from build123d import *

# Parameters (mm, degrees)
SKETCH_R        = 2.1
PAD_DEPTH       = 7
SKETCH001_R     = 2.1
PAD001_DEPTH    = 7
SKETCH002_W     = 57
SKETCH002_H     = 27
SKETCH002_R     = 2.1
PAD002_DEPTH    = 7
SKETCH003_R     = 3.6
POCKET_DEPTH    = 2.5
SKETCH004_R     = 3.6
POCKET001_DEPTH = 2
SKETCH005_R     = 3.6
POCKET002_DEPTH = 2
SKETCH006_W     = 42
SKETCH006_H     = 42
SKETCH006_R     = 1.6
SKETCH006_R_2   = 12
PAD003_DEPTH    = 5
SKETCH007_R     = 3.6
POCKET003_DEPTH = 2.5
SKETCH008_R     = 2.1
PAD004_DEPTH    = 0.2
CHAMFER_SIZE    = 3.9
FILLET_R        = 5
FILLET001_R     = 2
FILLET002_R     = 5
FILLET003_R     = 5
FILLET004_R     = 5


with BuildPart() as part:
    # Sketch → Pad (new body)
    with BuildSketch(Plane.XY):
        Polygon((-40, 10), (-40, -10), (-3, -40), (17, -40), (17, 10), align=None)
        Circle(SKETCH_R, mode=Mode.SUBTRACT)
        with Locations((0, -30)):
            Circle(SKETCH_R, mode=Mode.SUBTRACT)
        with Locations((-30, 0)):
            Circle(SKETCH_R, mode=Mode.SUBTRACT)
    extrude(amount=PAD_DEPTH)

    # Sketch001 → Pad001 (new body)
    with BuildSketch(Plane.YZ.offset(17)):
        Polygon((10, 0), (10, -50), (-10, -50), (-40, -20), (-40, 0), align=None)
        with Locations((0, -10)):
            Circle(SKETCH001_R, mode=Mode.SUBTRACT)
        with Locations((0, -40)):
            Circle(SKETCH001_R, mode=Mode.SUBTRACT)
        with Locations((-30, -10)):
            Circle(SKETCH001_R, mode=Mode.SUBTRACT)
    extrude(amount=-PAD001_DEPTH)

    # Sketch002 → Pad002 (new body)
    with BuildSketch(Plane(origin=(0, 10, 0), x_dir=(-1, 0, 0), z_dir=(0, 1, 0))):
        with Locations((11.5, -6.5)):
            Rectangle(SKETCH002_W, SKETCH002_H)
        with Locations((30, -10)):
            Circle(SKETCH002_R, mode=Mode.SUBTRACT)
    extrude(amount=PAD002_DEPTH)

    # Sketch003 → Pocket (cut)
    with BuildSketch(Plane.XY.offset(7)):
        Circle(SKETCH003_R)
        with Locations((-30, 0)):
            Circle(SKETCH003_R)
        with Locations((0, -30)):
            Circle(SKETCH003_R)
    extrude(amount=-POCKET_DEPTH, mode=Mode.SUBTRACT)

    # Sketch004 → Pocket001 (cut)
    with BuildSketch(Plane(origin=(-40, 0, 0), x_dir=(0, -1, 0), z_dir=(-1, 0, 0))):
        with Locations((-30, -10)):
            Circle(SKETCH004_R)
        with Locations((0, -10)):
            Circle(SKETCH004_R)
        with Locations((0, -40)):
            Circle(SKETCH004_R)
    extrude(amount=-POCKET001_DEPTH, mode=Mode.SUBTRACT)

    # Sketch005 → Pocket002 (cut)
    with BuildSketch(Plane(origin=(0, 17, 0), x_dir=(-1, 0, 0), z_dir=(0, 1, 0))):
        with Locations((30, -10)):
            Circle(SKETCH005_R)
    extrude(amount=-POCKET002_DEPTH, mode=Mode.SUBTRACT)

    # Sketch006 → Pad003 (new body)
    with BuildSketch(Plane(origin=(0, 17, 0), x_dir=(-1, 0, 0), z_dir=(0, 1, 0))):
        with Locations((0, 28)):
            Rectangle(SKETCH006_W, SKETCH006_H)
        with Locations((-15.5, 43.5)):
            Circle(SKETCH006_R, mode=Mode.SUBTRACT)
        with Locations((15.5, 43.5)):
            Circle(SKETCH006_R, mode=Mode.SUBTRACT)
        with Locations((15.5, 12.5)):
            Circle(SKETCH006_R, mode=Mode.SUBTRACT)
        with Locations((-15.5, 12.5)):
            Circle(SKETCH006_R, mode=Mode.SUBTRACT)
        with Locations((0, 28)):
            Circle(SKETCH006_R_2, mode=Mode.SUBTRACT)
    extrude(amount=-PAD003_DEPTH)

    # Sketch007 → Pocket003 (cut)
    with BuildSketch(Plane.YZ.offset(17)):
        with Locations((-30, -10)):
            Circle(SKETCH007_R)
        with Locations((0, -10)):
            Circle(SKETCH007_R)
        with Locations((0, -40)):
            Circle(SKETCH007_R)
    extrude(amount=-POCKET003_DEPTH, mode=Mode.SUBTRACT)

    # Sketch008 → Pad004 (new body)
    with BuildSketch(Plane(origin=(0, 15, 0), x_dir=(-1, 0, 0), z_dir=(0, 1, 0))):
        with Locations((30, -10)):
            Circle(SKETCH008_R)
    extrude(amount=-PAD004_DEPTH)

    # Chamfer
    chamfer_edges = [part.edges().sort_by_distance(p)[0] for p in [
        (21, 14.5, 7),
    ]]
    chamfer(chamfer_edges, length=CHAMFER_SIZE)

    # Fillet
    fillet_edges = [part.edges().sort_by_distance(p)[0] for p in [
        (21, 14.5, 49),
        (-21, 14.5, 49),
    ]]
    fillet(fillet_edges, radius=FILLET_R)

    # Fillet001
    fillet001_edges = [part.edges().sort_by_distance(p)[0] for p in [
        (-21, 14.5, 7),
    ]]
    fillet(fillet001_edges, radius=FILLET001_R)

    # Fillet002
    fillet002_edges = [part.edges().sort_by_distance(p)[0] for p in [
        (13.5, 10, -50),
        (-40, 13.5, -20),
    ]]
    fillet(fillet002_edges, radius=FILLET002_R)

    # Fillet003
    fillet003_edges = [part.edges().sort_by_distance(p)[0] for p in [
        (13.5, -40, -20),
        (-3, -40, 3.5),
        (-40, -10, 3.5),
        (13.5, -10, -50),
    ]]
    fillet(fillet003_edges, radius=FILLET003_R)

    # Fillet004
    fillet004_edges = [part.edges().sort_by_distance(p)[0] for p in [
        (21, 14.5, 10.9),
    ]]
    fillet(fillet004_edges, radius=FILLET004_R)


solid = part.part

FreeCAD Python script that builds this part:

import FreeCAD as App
import Part
import Sketcher


def edges_at(feature, points):
    """Names of the edges that pass closest to the given points."""
    edges = feature.Shape.Edges
    near = lambda p: min(range(len(edges)), key=lambda i: edges[i].distToShape(Part.Vertex(*p))[0])
    return sorted({f"Edge{near(p) + 1}" for p in points})

doc = App.newDocument("Part")
body = doc.addObject("PartDesign::Body", "Body")

sketch1 = doc.addObject("Sketcher::SketchObject", "Sketch")
body.addObject(sketch1)
sketch1.AttachmentSupport = (doc.XY_Plane, [""])
sketch1.MapMode = "FlatFace"
sketch1.addGeometry([
    Part.LineSegment(App.Vector(-40, 10, 0), App.Vector(-40, -10, 0)),
    Part.LineSegment(App.Vector(-40, -10, 0), App.Vector(-3, -40, 0)),
    Part.LineSegment(App.Vector(-3, -40, 0), App.Vector(17, -40, 0)),
    Part.LineSegment(App.Vector(17, -40, 0), App.Vector(17, 10, 0)),
    Part.LineSegment(App.Vector(17, 10, 0), App.Vector(-40, 10, 0)),
    Part.Circle(App.Vector(0, -30, 0), App.Vector(0, 0, 1), 2.1),
    Part.Circle(App.Vector(-30, 0, 0), App.Vector(0, 0, 1), 2.1),
    Part.Circle(App.Vector(0, 0, 0), App.Vector(0, 0, 1), 2.1),
], False)
sketch1.addConstraint([
    Sketcher.Constraint("Coincident", 0, 2, 1, 1),
    Sketcher.Constraint("Coincident", 1, 2, 2, 1),
    Sketcher.Constraint("Coincident", 2, 2, 3, 1),
    Sketcher.Constraint("Coincident", 3, 2, 4, 1),
    Sketcher.Constraint("Coincident", 4, 2, 0, 1),
    Sketcher.Constraint("Vertical", 0),
    Sketcher.Constraint("Horizontal", 2),
    Sketcher.Constraint("Vertical", 3),
    Sketcher.Constraint("Horizontal", 4),
    Sketcher.Constraint("Coincident", 7, 3, -1, 1),
    Sketcher.Constraint("Equal", 5, 6),
    Sketcher.Constraint("Equal", 6, 7),
    Sketcher.Constraint("PointOnObject", 5, 3, -2),
    Sketcher.Constraint("PointOnObject", 6, 3, -1),
    Sketcher.Constraint("Equal", 2, 0),
    Sketcher.Constraint("Diameter", 5, 4.2),
    Sketcher.Constraint("DistanceX", 2, 1, 2, 2, 20.0),
    Sketcher.Constraint("DistanceX", 4, 2, 4, 1, 57.0),
    Sketcher.Constraint("DistanceY", 3, 1, 3, 2, 50.0),
    Sketcher.Constraint("DistanceY", 5, 3, -1, 1, 30.0),
    Sketcher.Constraint("DistanceX", 6, 3, -1, 1, 30.0),
    Sketcher.Constraint("DistanceX", 0, 2, -1, 1, 40.0),
    Sketcher.Constraint("DistanceY", 0, 2, -1, 1, 10.0),
])
pad1 = doc.addObject("PartDesign::Pad", "Pad")
body.addObject(pad1)
pad1.Profile = sketch1
pad1.Length = 7

sketch2 = doc.addObject("Sketcher::SketchObject", "Sketch001")
body.addObject(sketch2)
sketch2.AttachmentSupport = (doc.YZ_Plane, [""])
sketch2.MapMode = "FlatFace"
sketch2.AttachmentOffset = App.Placement(App.Vector(0, 0, 17), App.Rotation())
sketch2.addGeometry([
    Part.LineSegment(App.Vector(10, -50, 0), App.Vector(10, 0, 0)),
    Part.LineSegment(App.Vector(10, 0, 0), App.Vector(-40, 0, 0)),
    Part.LineSegment(App.Vector(-40, 0, 0), App.Vector(-40, -20, 0)),
    Part.LineSegment(App.Vector(-40, -20, 0), App.Vector(-10, -50, 0)),
    Part.LineSegment(App.Vector(-10, -50, 0), App.Vector(10, -50, 0)),
    Part.Circle(App.Vector(0, -40, 0), App.Vector(0, 0, 1), 2.1),
    Part.Circle(App.Vector(0, -10, 0), App.Vector(0, 0, 1), 2.1),
    Part.Circle(App.Vector(-30, -10, 0), App.Vector(0, 0, 1), 2.1),
], False)
sketch2.addConstraint([
    Sketcher.Constraint("Coincident", 0, 2, 1, 1),
    Sketcher.Constraint("Coincident", 1, 2, 2, 1),
    Sketcher.Constraint("Coincident", 2, 2, 3, 1),
    Sketcher.Constraint("Coincident", 3, 2, 4, 1),
    Sketcher.Constraint("Coincident", 4, 2, 0, 1),
    Sketcher.Constraint("Vertical", 0),
    Sketcher.Constraint("Horizontal", 1),
    Sketcher.Constraint("Vertical", 2),
    Sketcher.Constraint("Horizontal", 4),
    Sketcher.Constraint("Equal", 5, 6),
    Sketcher.Constraint("Equal", 6, 7),
    Sketcher.Constraint("PointOnObject", 5, 3, -2),
    Sketcher.Constraint("PointOnObject", 6, 3, -2),
    Sketcher.Constraint("PointOnObject", 0, 2, -1),
    Sketcher.Constraint("Horizontal", 6, 3, 7, 3),
    Sketcher.Constraint("Equal", 1, 0),
    Sketcher.Constraint("Equal", 4, 2),
    Sketcher.Constraint("Diameter", 5, 4.2),
    Sketcher.Constraint("DistanceX", 1, 2, 1, 1, 50.0),
    Sketcher.Constraint("DistanceX", 4, 1, 4, 2, 20.0),
    Sketcher.Constraint("DistanceY", 5, 3, -1, 1, 40.0),
    Sketcher.Constraint("DistanceY", 6, 3, -1, 1, 10.0),
    Sketcher.Constraint("DistanceX", 7, 3, -1, 1, 30.0),
    Sketcher.Constraint("DistanceX", -1, 1, 0, 2, 10.0),
])
pad2 = doc.addObject("PartDesign::Pad", "Pad001")
body.addObject(pad2)
pad2.Profile = sketch2
pad2.Length = 7
pad2.Reversed = True

sketch3 = doc.addObject("Sketcher::SketchObject", "Sketch002")
body.addObject(sketch3)
sketch3.AttachmentSupport = (doc.XZ_Plane, [""])
sketch3.MapMode = "FlatFace"
sketch3.AttachmentOffset = App.Placement(App.Vector(0, 0, -10), App.Rotation())
sketch3.addGeometry([
    Part.LineSegment(App.Vector(17, 7, 0), App.Vector(17, -20, 0)),
    Part.LineSegment(App.Vector(17, -20, 0), App.Vector(-40, -20, 0)),
    Part.LineSegment(App.Vector(-40, -20, 0), App.Vector(-40, 7, 0)),
    Part.LineSegment(App.Vector(-40, 7, 0), App.Vector(17, 7, 0)),
    Part.Circle(App.Vector(-30, -10, 0), App.Vector(0, 0, 1), 2.1),
], False)
sketch3.addConstraint([
    Sketcher.Constraint("Coincident", 0, 2, 1, 1),
    Sketcher.Constraint("Coincident", 1, 2, 2, 1),
    Sketcher.Constraint("Coincident", 2, 2, 3, 1),
    Sketcher.Constraint("Coincident", 3, 2, 0, 1),
    Sketcher.Constraint("Vertical", 0),
    Sketcher.Constraint("Horizontal", 1),
    Sketcher.Constraint("Vertical", 2),
    Sketcher.Constraint("Horizontal", 3),
    Sketcher.Constraint("Diameter", 4, 4.2),
    Sketcher.Constraint("DistanceX", 1, 2, 1, 1, 57.0),
    Sketcher.Constraint("DistanceY", 0, 2, 0, 1, 27.0),
    Sketcher.Constraint("DistanceX", 4, 3, -1, 1, 30.0),
    Sketcher.Constraint("DistanceY", 4, 3, -1, 1, 10.0),
    Sketcher.Constraint("DistanceX", -1, 1, 0, 2, 17.0),
    Sketcher.Constraint("DistanceY", 0, 2, -1, 1, 20.0),
])
pad3 = doc.addObject("PartDesign::Pad", "Pad002")
body.addObject(pad3)
pad3.Profile = sketch3
pad3.Length = 7
pad3.Reversed = True

sketch4 = doc.addObject("Sketcher::SketchObject", "Sketch003")
body.addObject(sketch4)
sketch4.AttachmentSupport = (doc.XY_Plane, [""])
sketch4.MapMode = "FlatFace"
sketch4.AttachmentOffset = App.Placement(App.Vector(0, 0, 7), App.Rotation())
sketch4.addGeometry([
    Part.Circle(App.Vector(0, 0, 0), App.Vector(0, 0, 1), 3.6),
    Part.Circle(App.Vector(-30, 0, 0), App.Vector(0, 0, 1), 3.6),
    Part.Circle(App.Vector(0, -30, 0), App.Vector(0, 0, 1), 3.6),
], False)
sketch4.addConstraint([
    Sketcher.Constraint("Coincident", 0, 3, -1, 1),
    Sketcher.Constraint("Equal", 0, 1),
    Sketcher.Constraint("Equal", 1, 2),
    Sketcher.Constraint("PointOnObject", 1, 3, -1),
    Sketcher.Constraint("PointOnObject", 2, 3, -2),
    Sketcher.Constraint("Diameter", 0, 7.2),
    Sketcher.Constraint("DistanceX", 1, 3, -1, 1, 30.0),
    Sketcher.Constraint("DistanceY", 2, 3, -1, 1, 30.0),
])
pocket1 = doc.addObject("PartDesign::Pocket", "Pocket")
body.addObject(pocket1)
pocket1.Profile = sketch4
pocket1.Length = 2.5

sketch5 = doc.addObject("Sketcher::SketchObject", "Sketch004")
body.addObject(sketch5)
sketch5.AttachmentSupport = (doc.YZ_Plane, [""])
sketch5.MapMode = "FlatFace"
sketch5.AttachmentOffset = App.Placement(App.Vector(0, 0, -40), App.Rotation())
sketch5.addGeometry([
    Part.Circle(App.Vector(30, -10, 0), App.Vector(0, 0, 1), 3.6),
    Part.Circle(App.Vector(0, -10, 0), App.Vector(0, 0, 1), 3.6),
    Part.Circle(App.Vector(0, -40, 0), App.Vector(0, 0, 1), 3.6),
], False)
sketch5.addConstraint([
    Sketcher.Constraint("Equal", 0, 1),
    Sketcher.Constraint("Equal", 1, 2),
    Sketcher.Constraint("PointOnObject", 1, 3, -2),
    Sketcher.Constraint("PointOnObject", 2, 3, -2),
    Sketcher.Constraint("Horizontal", 0, 3, 1, 3),
    Sketcher.Constraint("Diameter", 0, 7.2),
    Sketcher.Constraint("DistanceX", -1, 1, 0, 3, 30.0),
    Sketcher.Constraint("DistanceY", 0, 3, -1, 1, 10.0),
    Sketcher.Constraint("DistanceY", 2, 3, -1, 1, 40.0),
])
pocket2 = doc.addObject("PartDesign::Pocket", "Pocket001")
body.addObject(pocket2)
pocket2.Profile = sketch5
pocket2.Length = 2
pocket2.Reversed = True

sketch6 = doc.addObject("Sketcher::SketchObject", "Sketch005")
body.addObject(sketch6)
sketch6.AttachmentSupport = (doc.XZ_Plane, [""])
sketch6.MapMode = "FlatFace"
sketch6.AttachmentOffset = App.Placement(App.Vector(0, 0, -17), App.Rotation())
sketch6.addGeometry(Part.Circle(App.Vector(-30, -10, 0), App.Vector(0, 0, 1), 3.6), False)
sketch6.addConstraint([
    Sketcher.Constraint("Diameter", 0, 7.2),
    Sketcher.Constraint("DistanceX", 0, 3, -1, 1, 30.0),
    Sketcher.Constraint("DistanceY", 0, 3, -1, 1, 10.0),
])
pocket3 = doc.addObject("PartDesign::Pocket", "Pocket002")
body.addObject(pocket3)
pocket3.Profile = sketch6
pocket3.Length = 2
pocket3.Reversed = True

sketch7 = doc.addObject("Sketcher::SketchObject", "Sketch006")
body.addObject(sketch7)
sketch7.AttachmentSupport = (doc.XZ_Plane, [""])
sketch7.MapMode = "FlatFace"
sketch7.AttachmentOffset = App.Placement(App.Vector(0, 0, -17), App.Rotation())
sketch7.addGeometry([
    Part.LineSegment(App.Vector(21, 49, 0), App.Vector(21, 7, 0)),
    Part.LineSegment(App.Vector(21, 7, 0), App.Vector(-21, 7, 0)),
    Part.LineSegment(App.Vector(-21, 7, 0), App.Vector(-21, 49, 0)),
    Part.LineSegment(App.Vector(-21, 49, 0), App.Vector(21, 49, 0)),
    Part.Circle(App.Vector(15.5, 12.5, 0), App.Vector(0, 0, 1), 1.6),
    Part.Circle(App.Vector(-15.5, 12.5, 0), App.Vector(0, 0, 1), 1.6),
    Part.Circle(App.Vector(15.5, 43.5, 0), App.Vector(0, 0, 1), 1.6),
    Part.Circle(App.Vector(0, 28, 0), App.Vector(0, 0, 1), 12),
    Part.Circle(App.Vector(-15.5, 43.5, 0), App.Vector(0, 0, 1), 1.6),
], False)
sketch7.addConstraint([
    Sketcher.Constraint("Coincident", 0, 2, 1, 1),
    Sketcher.Constraint("Coincident", 1, 2, 2, 1),
    Sketcher.Constraint("Coincident", 2, 2, 3, 1),
    Sketcher.Constraint("Coincident", 3, 2, 0, 1),
    Sketcher.Constraint("Vertical", 0),
    Sketcher.Constraint("Horizontal", 1),
    Sketcher.Constraint("Vertical", 2),
    Sketcher.Constraint("Horizontal", 3),
    Sketcher.Constraint("Equal", 4, 5),
    Sketcher.Constraint("Equal", 5, 6),
    Sketcher.Constraint("Equal", 6, 8),
    Sketcher.Constraint("Symmetric", 4, 3, 5, 3, -2),
    Sketcher.Constraint("Symmetric", 6, 3, 8, 3, -2),
    Sketcher.Constraint("PointOnObject", 7, 3, -2),
    Sketcher.Constraint("Vertical", 4, 3, 6, 3),
    Sketcher.Constraint("Equal", 3, 0),
    Sketcher.Constraint("Diameter", 7, 24.0),
    Sketcher.Constraint("Diameter", 4, 3.2),
    Sketcher.Constraint("DistanceX", 1, 2, 1, 1, 42.0),
    Sketcher.Constraint("DistanceY", -1, 1, 7, 3, 28.0),
    Sketcher.Constraint("DistanceX", -1, 1, 0, 2, 21.0),
    Sketcher.Constraint("DistanceY", -1, 1, 0, 2, 7.0),
    Sketcher.Constraint("DistanceX", 5, 3, 4, 3, 31.0),
    Sketcher.Constraint("DistanceY", 4, 3, 6, 3, 31.0),
    Sketcher.Constraint("DistanceY", -1, 1, 4, 3, 12.5),
])
pad4 = doc.addObject("PartDesign::Pad", "Pad003")
body.addObject(pad4)
pad4.Profile = sketch7
pad4.Length = 5

sketch8 = doc.addObject("Sketcher::SketchObject", "Sketch007")
body.addObject(sketch8)
sketch8.AttachmentSupport = (doc.YZ_Plane, [""])
sketch8.MapMode = "FlatFace"
sketch8.AttachmentOffset = App.Placement(App.Vector(0, 0, 17), App.Rotation())
sketch8.addGeometry([
    Part.Circle(App.Vector(-30, -10, 0), App.Vector(0, 0, 1), 3.6),
    Part.Circle(App.Vector(0, -10, 0), App.Vector(0, 0, 1), 3.6),
    Part.Circle(App.Vector(0, -40, 0), App.Vector(0, 0, 1), 3.6),
], False)
sketch8.addConstraint([
    Sketcher.Constraint("Equal", 0, 1),
    Sketcher.Constraint("Equal", 1, 2),
    Sketcher.Constraint("PointOnObject", 1, 3, -2),
    Sketcher.Constraint("PointOnObject", 2, 3, -2),
    Sketcher.Constraint("Horizontal", 0, 3, 1, 3),
    Sketcher.Constraint("Diameter", 0, 7.2),
    Sketcher.Constraint("DistanceX", 0, 3, -1, 1, 30.0),
    Sketcher.Constraint("DistanceY", 0, 3, -1, 1, 10.0),
    Sketcher.Constraint("DistanceY", 2, 3, -1, 1, 40.0),
])
pocket4 = doc.addObject("PartDesign::Pocket", "Pocket003")
body.addObject(pocket4)
pocket4.Profile = sketch8
pocket4.Length = 2.5

sketch9 = doc.addObject("Sketcher::SketchObject", "Sketch008")
body.addObject(sketch9)
sketch9.AttachmentSupport = (doc.XZ_Plane, [""])
sketch9.MapMode = "FlatFace"
sketch9.AttachmentOffset = App.Placement(App.Vector(0, 0, -15), App.Rotation())
sketch9.addGeometry(Part.Circle(App.Vector(-30, -10, 0), App.Vector(0, 0, 1), 2.1), False)
sketch9.addConstraint([
    Sketcher.Constraint("Diameter", 0, 4.2),
    Sketcher.Constraint("DistanceX", 0, 3, -1, 1, 30.0),
    Sketcher.Constraint("DistanceY", 0, 3, -1, 1, 10.0),
])
pad5 = doc.addObject("PartDesign::Pad", "Pad004")
body.addObject(pad5)
pad5.Profile = sketch9
pad5.Length = 0.2
doc.recompute()

chamfer = doc.addObject("PartDesign::Chamfer", "Chamfer")
body.addObject(chamfer)
chamfer.Base = (pad5, edges_at(pad5, [(21, 14.5, 7)]))
chamfer.Size = 3.9
doc.recompute()

fillet = doc.addObject("PartDesign::Fillet", "Fillet")
body.addObject(fillet)
fillet.Base = (chamfer, edges_at(chamfer, [(21, 14.5, 49), (-21, 14.5, 49)]))
fillet.Radius = 5
doc.recompute()

fillet2 = doc.addObject("PartDesign::Fillet", "Fillet001")
body.addObject(fillet2)
fillet2.Base = (fillet, edges_at(fillet, [(-21, 14.5, 7)]))
fillet2.Radius = 2
doc.recompute()

fillet3 = doc.addObject("PartDesign::Fillet", "Fillet002")
body.addObject(fillet3)
fillet3.Base = (fillet2, edges_at(fillet2, [(13.5, 10, -50), (-40, 13.5, -20)]))
fillet3.Radius = 5
doc.recompute()

fillet4 = doc.addObject("PartDesign::Fillet", "Fillet003")
body.addObject(fillet4)
fillet4.Base = (fillet3, edges_at(fillet3, [
    (13.5, -40, -20),
    (-3, -40, 3.5),
    (-40, -10, 3.5),
    (13.5, -10, -50),
]))
fillet4.Radius = 5
doc.recompute()

fillet5 = doc.addObject("PartDesign::Fillet", "Fillet004")
body.addObject(fillet5)
fillet5.Base = (fillet4, edges_at(fillet4, [(21, 14.5, 10.9)]))
fillet5.Radius = 5

doc.recompute()
